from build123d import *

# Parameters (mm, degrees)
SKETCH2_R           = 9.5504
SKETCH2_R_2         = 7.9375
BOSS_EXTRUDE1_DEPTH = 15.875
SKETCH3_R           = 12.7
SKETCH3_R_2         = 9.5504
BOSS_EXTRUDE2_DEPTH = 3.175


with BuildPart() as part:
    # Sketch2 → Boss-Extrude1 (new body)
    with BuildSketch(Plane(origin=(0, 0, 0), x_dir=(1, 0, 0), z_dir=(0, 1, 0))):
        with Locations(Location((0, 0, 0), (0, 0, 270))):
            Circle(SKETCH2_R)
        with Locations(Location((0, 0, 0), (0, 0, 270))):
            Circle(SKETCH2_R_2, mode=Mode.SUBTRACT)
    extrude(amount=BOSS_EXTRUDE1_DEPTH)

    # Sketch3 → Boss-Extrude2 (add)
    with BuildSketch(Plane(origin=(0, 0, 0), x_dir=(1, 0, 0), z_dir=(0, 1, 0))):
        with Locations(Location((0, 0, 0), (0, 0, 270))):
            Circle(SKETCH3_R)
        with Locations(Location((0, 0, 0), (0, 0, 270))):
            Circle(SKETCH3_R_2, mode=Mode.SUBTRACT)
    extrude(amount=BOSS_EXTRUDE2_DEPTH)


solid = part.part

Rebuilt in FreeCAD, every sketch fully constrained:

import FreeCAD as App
import Part
import Sketcher
Q = App.Units.Quantity

doc = App.newDocument("Part")
body = doc.addObject("PartDesign::Body", "Body")

# Sketch on XZ plane
sketch1 = doc.addObject("Sketcher::SketchObject", "Sketch")
body.addObject(sketch1)
sketch1.AttachmentSupport = (doc.XZ_Plane, [""])
sketch1.MapMode = "FlatFace"
sketch1.addGeometry([
    Part.Circle(App.Vector(0, 0, 0), App.Vector(0, 0, 1), 9.5504),
    Part.Circle(App.Vector(0, 0, 0), App.Vector(0, 0, 1), 7.9375),
], False)
sketch1.addConstraint([
    Sketcher.Constraint("Coincident", 0, 3, -1, 1),
    Sketcher.Constraint("Coincident", 1, 3, -1, 1),
    Sketcher.Constraint("Diameter", 0, Q("0.752 in")),
    Sketcher.Constraint("Diameter", 1, Q("0.625 in")),
])
pad1 = doc.addObject("PartDesign::Pad", "Pad")
body.addObject(pad1)
pad1.Profile = sketch1
pad1.Length = Q("0.625 in")
pad1.Reversed = True

# Sketch on XZ plane
sketch2 = doc.addObject("Sketcher::SketchObject", "Sketch001")
body.addObject(sketch2)
sketch2.AttachmentSupport = (doc.XZ_Plane, [""])
sketch2.MapMode = "FlatFace"
sketch2.addGeometry([
    Part.Circle(App.Vector(0, 0, 0), App.Vector(0, 0, 1), 12.7),
    Part.Circle(App.Vector(0, 0, 0), App.Vector(0, 0, 1), 9.5504),
], False)
sketch2.addConstraint([
    Sketcher.Constraint("Coincident", 0, 3, -1, 1),
    Sketcher.Constraint("Coincident", 1, 3, -1, 1),
    Sketcher.Constraint("Diameter", 0, Q("1 in")),
    Sketcher.Constraint("Diameter", 1, Q("0.752 in")),
])
pad2 = doc.addObject("PartDesign::Pad", "Pad001")
body.addObject(pad2)
pad2.Profile = sketch2
pad2.Length = Q("0.125 in")
pad2.Reversed = True

doc.recompute()
